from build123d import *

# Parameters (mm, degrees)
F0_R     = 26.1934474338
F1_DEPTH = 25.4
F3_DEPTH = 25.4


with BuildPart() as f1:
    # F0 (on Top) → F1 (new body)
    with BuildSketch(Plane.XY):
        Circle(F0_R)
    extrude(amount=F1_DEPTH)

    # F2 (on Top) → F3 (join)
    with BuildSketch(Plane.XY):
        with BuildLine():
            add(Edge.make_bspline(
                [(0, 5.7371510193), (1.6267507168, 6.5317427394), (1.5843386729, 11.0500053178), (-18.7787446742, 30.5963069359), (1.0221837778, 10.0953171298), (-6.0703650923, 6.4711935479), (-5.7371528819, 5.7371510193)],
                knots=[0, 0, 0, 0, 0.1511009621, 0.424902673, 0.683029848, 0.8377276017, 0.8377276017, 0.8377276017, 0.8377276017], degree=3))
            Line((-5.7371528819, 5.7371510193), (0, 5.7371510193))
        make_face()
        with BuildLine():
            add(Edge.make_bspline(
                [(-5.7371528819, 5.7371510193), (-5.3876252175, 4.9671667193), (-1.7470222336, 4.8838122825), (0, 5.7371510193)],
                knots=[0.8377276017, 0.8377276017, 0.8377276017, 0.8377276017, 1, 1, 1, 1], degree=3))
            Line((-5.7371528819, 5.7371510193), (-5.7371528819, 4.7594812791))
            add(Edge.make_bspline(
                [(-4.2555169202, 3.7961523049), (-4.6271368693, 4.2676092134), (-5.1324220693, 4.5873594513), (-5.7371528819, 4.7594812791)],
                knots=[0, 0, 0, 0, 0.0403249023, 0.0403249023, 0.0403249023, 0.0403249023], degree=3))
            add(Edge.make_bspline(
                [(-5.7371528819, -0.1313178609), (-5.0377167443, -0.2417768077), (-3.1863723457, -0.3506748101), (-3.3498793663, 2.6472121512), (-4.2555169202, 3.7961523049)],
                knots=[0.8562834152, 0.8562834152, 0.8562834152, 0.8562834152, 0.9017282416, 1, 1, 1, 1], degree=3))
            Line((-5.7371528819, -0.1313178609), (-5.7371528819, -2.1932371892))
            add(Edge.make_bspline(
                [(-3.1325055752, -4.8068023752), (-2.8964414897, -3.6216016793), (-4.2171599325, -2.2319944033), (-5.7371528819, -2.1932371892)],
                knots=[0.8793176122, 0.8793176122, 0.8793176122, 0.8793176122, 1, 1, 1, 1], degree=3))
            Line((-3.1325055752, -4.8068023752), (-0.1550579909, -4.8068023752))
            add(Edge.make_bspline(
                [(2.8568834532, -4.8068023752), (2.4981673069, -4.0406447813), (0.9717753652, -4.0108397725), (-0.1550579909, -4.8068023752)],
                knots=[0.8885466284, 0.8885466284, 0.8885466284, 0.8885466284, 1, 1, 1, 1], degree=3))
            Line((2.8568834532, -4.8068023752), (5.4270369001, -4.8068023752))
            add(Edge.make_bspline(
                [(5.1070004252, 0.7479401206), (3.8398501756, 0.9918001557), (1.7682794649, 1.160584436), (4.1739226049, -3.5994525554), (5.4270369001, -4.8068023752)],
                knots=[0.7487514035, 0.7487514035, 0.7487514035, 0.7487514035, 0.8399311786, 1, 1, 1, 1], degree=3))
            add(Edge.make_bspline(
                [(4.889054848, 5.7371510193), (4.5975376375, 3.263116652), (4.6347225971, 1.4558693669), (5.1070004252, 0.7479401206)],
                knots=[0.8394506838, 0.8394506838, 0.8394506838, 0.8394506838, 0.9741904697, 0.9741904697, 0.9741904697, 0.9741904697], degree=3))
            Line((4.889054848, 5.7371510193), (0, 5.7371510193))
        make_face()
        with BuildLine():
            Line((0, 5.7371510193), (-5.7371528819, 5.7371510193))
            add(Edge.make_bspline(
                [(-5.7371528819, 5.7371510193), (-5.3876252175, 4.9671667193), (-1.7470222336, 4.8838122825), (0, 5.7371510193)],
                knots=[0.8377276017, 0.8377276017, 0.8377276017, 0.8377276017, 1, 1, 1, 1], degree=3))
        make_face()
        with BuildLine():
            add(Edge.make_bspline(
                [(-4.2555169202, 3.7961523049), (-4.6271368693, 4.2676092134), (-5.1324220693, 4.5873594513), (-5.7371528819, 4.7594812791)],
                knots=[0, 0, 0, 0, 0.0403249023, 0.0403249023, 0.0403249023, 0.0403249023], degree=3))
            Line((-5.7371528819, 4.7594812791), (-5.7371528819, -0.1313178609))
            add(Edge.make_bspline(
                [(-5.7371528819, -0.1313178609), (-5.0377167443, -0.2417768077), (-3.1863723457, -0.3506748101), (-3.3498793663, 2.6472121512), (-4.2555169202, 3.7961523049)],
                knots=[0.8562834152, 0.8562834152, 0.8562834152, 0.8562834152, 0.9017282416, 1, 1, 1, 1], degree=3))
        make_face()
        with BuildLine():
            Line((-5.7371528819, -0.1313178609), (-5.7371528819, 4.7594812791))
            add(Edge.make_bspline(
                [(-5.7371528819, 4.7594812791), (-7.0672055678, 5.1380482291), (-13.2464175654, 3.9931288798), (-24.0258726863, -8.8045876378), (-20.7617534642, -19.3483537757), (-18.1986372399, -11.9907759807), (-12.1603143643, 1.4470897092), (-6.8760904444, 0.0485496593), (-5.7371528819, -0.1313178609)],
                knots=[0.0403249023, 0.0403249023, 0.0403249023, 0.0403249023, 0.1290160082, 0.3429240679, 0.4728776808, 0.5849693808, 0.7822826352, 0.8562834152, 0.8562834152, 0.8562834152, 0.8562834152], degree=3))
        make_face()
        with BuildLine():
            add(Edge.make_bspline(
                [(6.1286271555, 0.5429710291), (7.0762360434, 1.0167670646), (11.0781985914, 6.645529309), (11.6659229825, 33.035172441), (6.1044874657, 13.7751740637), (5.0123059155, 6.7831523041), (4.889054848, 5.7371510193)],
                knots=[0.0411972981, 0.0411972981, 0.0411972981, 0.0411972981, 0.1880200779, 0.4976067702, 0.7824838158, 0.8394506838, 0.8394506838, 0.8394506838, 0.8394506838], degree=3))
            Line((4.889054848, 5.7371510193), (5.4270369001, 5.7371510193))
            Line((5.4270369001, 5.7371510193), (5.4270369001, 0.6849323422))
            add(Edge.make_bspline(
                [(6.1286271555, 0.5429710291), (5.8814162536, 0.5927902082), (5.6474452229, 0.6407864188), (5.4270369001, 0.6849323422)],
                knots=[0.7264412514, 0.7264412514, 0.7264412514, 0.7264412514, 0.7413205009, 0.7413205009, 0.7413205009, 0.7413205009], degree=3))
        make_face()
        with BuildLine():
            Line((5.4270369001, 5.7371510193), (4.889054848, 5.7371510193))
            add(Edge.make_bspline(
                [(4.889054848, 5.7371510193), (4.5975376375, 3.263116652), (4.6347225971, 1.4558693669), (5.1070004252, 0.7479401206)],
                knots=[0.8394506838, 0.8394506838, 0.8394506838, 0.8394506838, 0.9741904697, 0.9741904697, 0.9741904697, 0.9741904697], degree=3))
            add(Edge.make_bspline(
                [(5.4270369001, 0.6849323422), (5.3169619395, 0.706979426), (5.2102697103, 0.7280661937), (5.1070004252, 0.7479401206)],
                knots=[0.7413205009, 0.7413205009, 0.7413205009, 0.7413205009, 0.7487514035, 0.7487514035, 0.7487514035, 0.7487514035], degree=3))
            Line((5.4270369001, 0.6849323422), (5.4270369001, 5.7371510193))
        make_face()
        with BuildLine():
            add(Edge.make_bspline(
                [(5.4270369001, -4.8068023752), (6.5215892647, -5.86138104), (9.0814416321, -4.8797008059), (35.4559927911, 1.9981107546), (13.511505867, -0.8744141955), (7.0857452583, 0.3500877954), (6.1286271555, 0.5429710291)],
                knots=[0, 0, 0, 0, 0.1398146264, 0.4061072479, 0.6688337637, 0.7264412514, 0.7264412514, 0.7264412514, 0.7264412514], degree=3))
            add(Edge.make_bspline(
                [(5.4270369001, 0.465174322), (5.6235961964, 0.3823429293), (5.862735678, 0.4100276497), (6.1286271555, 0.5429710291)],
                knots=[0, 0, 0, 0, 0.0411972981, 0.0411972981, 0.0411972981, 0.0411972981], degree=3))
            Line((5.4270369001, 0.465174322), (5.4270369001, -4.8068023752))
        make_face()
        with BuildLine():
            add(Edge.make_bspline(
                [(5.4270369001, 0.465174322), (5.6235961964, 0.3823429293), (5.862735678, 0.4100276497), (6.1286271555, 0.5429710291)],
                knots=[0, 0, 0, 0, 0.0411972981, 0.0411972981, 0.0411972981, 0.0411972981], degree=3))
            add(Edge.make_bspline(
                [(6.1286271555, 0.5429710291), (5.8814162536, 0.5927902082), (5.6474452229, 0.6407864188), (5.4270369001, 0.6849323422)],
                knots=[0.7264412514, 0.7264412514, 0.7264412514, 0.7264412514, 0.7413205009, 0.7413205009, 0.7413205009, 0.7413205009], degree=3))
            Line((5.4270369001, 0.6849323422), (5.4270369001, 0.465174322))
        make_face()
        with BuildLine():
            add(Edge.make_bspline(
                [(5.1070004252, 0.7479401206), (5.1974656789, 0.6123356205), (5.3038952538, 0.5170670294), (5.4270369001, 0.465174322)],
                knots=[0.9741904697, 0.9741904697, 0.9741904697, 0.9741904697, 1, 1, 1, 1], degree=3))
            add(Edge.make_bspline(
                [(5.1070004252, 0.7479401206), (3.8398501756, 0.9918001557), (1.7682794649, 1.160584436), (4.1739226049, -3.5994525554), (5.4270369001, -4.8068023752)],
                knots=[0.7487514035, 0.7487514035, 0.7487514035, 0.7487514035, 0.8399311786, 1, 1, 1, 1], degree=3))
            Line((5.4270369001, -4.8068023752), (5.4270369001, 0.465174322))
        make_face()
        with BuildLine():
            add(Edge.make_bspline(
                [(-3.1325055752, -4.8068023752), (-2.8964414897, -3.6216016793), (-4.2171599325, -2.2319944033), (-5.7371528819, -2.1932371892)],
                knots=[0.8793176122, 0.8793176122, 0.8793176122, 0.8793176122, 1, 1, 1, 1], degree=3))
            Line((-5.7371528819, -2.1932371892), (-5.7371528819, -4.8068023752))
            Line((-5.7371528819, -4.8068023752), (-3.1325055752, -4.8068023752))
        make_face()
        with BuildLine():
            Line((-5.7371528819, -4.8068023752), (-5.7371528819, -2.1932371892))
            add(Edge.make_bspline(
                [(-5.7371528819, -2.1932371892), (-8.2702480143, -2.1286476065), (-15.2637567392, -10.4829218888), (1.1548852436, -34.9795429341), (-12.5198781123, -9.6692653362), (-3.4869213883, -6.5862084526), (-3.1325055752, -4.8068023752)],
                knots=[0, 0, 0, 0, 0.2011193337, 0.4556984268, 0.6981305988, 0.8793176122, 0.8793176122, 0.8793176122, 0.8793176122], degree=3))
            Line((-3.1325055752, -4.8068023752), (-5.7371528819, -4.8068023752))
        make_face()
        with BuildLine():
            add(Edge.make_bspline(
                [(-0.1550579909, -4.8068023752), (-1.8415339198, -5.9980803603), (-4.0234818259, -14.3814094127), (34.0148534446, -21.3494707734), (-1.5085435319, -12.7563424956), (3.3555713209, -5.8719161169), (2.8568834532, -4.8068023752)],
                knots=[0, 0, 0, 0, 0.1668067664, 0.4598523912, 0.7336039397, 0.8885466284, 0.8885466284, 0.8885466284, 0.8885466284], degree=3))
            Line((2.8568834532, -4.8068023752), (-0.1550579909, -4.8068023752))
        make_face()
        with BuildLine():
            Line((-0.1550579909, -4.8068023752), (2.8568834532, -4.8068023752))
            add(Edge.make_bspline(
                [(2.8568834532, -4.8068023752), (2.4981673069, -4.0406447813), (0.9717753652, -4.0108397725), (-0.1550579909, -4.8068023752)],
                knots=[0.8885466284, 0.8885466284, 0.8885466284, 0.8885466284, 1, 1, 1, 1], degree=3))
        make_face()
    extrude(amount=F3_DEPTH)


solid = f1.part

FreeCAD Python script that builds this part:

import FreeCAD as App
import Part
import Sketcher

V = App.Vector
Q = App.Units.Quantity

doc = App.newDocument("Part")
body = doc.addObject("PartDesign::Body", "Body")

# Sketch on XY plane
sketch1 = body.newObject("Sketcher::SketchObject", "Sketch")
sketch1.AttachmentSupport = (doc.getObject("XY_Plane"), [""])
sketch1.MapMode = "FlatFace"
sketch1.addGeometry(Part.Circle(V(0, 0, 0), V(0, 0, 1), 26), False)
sketch1.addConstraint([
    Sketcher.Constraint("Coincident", 0, 3, -1, 1),
    Sketcher.Constraint("Diameter", 0, Q("52.386895 mm")),
])
pad1 = body.newObject("PartDesign::Pad", "Pad")
pad1.Profile = sketch1
pad1.Length = Q("1 in")

# Sketch on XY plane
sketch2 = body.newObject("Sketcher::SketchObject", "Sketch001")
sketch2.AttachmentSupport = (doc.getObject("XY_Plane"), [""])
sketch2.MapMode = "FlatFace"
sketch2.addGeometry([
    Part.LineSegment(V(2.856883, -4.806802, 0), V(5.427037, -4.806802, 0)),  # 0
    Part.BSplineCurve([V(5.427037, -4.806802, 0), V(6.521589, -5.861381, 0), V(9.081442, -4.879701, 0), V(35.455993, 1.998111, 0), V(13.511506, -0.874414, 0), V(7.085745, 0.350088, 0), V(6.128627, 0.542971, 0)], [4, 1, 1, 1, 4], [0, 0.139814626, 0.406107248, 0.668833764, 0.726441251], False, 3, [1, 1, 1, 1, 1, 1, 1], False),  # 1
    Part.BSplineCurve([V(6.128627, 0.542971, 0), V(7.076236, 1.016767, 0), V(11.078199, 6.645529, 0), V(11.665923, 33.035172, 0), V(6.104487, 13.775174, 0), V(5.012306, 6.783152, 0), V(4.889055, 5.737151, 0)], [4, 1, 1, 1, 4], [0.041197298, 0.188020078, 0.49760677, 0.782483816, 0.839450684], False, 3, [1, 1, 1, 1, 1, 1, 1], False),  # 2
    Part.LineSegment(V(4.889055, 5.737151, 0), V(0, 5.737151, 0)),  # 3
    Part.BSplineCurve([V(0, 5.737151, 0), V(1.626751, 6.531743, 0), V(1.584339, 11.050005, 0), V(-18.778745, 30.596307, 0), V(1.022184, 10.095317, 0), V(-6.070365, 6.471194, 0), V(-5.737153, 5.737151, 0)], [4, 1, 1, 1, 4], [0, 0.151100962, 0.424902673, 0.683029848, 0.837727602], False, 3, [1, 1, 1, 1, 1, 1, 1], False),  # 4
    Part.LineSegment(V(-5.737153, 5.737151, 0), V(-5.737153, 4.759481, 0)),  # 5
    Part.BSplineCurve([V(-5.737153, 4.759481, 0), V(-7.067206, 5.138048, 0), V(-13.246418, 3.993129, 0), V(-24.025873, -8.804588, 0), V(-20.761753, -19.348354, 0), V(-18.198637, -11.990776, 0), V(-12.160314, 1.44709, 0), V(-6.87609, 0.04855, 0), V(-5.737153, -0.131318, 0)], [4, 1, 1, 1, 1, 1, 4], [0.040324902, 0.129016008, 0.342924068, 0.472877681, 0.584969381, 0.782282635, 0.856283415], False, 3, [1, 1, 1, 1, 1, 1, 1, 1, 1], False),  # 6
    Part.LineSegment(V(-5.737153, -0.131318, 0), V(-5.737153, -2.193237, 0)),  # 7
    Part.BSplineCurve([V(-5.737153, -2.193237, 0), V(-8.270248, -2.128648, 0), V(-15.263757, -10.482922, 0), V(1.154885, -34.979543, 0), V(-12.519878, -9.669265, 0), V(-3.486921, -6.586208, 0), V(-3.132506, -4.806802, 0)], [4, 1, 1, 1, 4], [0, 0.201119334, 0.455698427, 0.698130599, 0.879317612], False, 3, [1, 1, 1, 1, 1, 1, 1], False),  # 8
    Part.LineSegment(V(-3.132506, -4.806802, 0), V(-0.155058, -4.806802, 0)),  # 9
    Part.BSplineCurve([V(-0.155058, -4.806802, 0), V(-1.841534, -5.99808, 0), V(-4.023482, -14.381409, 0), V(34.014853, -21.349471, 0), V(-1.508544, -12.756342, 0), V(3.355571, -5.871916, 0), V(2.856883, -4.806802, 0)], [4, 1, 1, 1, 4], [0, 0.166806766, 0.459852391, 0.73360394, 0.888546628], False, 3, [1, 1, 1, 1, 1, 1, 1], False),  # 10
    Part.LineSegment(V(5.427037, 0.684932, 0), V(5.427037, 0.465174, 0)),  # 11
    Part.BSplineCurve([V(5.107, 0.74794, 0), V(5.197466, 0.612336, 0), V(5.303895, 0.517067, 0), V(5.427037, 0.465174, 0)], [4, 4], [0.97419047, 1], False, 3, [1, 1, 1, 1], False),  # 12
    Part.BSplineCurve([V(5.427037, 0.684932, 0), V(5.316962, 0.706979, 0), V(5.21027, 0.728066, 0), V(5.107, 0.74794, 0)], [4, 4], [0.741320501, 0.748751404], False, 3, [1, 1, 1, 1], False),  # 13
], False)
sketch2.addConstraint([
    Sketcher.Constraint("Block", 1),
    Sketcher.Constraint("Block", 2),
    Sketcher.Constraint("Block", 4),
    Sketcher.Constraint("Block", 6),
    Sketcher.Constraint("Block", 8),
    Sketcher.Constraint("Block", 10),
    Sketcher.Constraint("Block", 12),
    Sketcher.Constraint("Block", 13),
    Sketcher.Constraint("Coincident", 0, 2, 1, 1),
    Sketcher.Constraint("Coincident", 2, 2, 3, 1),
    Sketcher.Constraint("Coincident", 3, 2, 4, 1),
    Sketcher.Constraint("Coincident", 4, 2, 5, 1),
    Sketcher.Constraint("Coincident", 5, 2, 6, 1),
    Sketcher.Constraint("Coincident", 6, 2, 7, 1),
    Sketcher.Constraint("Coincident", 7, 2, 8, 1),
    Sketcher.Constraint("Coincident", 8, 2, 9, 1),
    Sketcher.Constraint("Coincident", 9, 2, 10, 1),
    Sketcher.Constraint("Coincident", 10, 2, 0, 1),
    Sketcher.Constraint("Coincident", 11, 2, 12, 2),
    Sketcher.Constraint("Coincident", 13, 1, 11, 1),
])
pad2 = body.newObject("PartDesign::Pad", "Pad001")
pad2.Profile = sketch2
pad2.Length = Q("1 in")

doc.recompute()
